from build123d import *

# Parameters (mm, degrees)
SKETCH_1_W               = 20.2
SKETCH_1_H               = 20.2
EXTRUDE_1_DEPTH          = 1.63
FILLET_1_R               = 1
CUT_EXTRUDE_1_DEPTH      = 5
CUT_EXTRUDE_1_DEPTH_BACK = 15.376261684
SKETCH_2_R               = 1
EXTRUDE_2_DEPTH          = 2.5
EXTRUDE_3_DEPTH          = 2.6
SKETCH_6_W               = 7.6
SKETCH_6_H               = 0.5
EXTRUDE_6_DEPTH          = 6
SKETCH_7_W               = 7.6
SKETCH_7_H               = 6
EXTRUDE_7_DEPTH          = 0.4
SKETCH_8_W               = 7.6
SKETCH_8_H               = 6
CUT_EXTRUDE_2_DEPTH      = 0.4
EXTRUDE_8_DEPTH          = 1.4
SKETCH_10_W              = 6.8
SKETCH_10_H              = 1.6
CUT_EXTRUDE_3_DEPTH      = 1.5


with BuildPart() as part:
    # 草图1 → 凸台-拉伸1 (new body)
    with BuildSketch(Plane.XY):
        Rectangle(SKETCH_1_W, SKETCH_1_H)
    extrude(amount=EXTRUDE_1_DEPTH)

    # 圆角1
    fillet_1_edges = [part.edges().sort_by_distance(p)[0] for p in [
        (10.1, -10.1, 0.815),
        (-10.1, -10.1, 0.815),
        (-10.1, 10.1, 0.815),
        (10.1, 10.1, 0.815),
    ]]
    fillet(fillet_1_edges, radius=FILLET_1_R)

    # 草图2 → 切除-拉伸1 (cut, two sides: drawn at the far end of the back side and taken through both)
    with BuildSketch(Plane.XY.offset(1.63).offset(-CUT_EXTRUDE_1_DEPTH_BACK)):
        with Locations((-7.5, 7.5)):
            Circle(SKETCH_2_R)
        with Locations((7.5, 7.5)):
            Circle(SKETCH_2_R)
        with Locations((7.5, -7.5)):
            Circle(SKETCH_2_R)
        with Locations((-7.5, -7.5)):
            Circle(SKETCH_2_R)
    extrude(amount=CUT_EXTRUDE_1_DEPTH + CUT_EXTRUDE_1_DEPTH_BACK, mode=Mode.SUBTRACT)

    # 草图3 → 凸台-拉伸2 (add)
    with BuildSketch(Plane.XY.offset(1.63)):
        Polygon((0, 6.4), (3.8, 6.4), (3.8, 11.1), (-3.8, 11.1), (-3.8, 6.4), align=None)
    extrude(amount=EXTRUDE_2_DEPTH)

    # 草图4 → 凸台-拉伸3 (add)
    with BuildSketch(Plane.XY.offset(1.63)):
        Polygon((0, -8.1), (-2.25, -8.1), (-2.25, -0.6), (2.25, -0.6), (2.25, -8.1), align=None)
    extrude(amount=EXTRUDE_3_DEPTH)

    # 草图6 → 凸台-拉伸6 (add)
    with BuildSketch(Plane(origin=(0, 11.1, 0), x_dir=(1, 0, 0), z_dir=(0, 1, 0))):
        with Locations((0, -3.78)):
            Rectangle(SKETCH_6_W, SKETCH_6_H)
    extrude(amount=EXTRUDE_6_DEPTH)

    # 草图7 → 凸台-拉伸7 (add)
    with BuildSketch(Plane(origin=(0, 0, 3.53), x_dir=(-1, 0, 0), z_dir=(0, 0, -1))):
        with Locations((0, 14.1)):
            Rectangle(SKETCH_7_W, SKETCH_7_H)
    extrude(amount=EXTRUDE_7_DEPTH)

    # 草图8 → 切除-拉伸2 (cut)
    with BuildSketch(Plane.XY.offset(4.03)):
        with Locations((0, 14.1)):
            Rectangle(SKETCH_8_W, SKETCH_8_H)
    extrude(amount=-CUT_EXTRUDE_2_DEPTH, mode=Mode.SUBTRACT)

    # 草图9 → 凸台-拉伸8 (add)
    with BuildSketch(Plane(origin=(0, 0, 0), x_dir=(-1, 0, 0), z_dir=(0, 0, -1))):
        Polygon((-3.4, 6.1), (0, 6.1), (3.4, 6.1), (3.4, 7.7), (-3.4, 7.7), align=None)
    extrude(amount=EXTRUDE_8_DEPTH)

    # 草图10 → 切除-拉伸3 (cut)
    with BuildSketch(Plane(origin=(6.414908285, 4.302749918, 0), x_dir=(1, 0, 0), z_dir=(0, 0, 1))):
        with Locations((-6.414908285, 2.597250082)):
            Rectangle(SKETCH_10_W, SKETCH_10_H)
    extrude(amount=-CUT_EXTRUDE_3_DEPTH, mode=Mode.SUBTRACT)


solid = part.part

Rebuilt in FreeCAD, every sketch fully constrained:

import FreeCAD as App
import Part
import Sketcher
from FreeCAD import Vector
Q = App.Units.Quantity


def edges_at(feature, points):
    """Names of the edges that pass closest to the given points."""
    edges = feature.Shape.Edges
    near = lambda p: min(range(len(edges)), key=lambda i: edges[i].distToShape(Part.Vertex(*p))[0])
    return sorted({f"Edge{near(p) + 1}" for p in points})


def add_polygon(sketch, points):
    """Adds a closed chain of lines whose ends are joined by coincident constraints."""
    first, n = sketch.GeometryCount, len(points)
    for a, b in zip(points, points[1:] + points[:1]):
        sketch.addGeometry(Part.LineSegment(App.Vector(*a, 0), App.Vector(*b, 0)), False)
    for i in range(n):
        sketch.addConstraint(Sketcher.Constraint("Coincident", first + i, 2, first + (i + 1) % n, 1))

doc = App.newDocument("Part")
body = doc.addObject("PartDesign::Body", "Body")

sketch1 = body.newObject("Sketcher::SketchObject", "Sketch")
sketch1.AttachmentSupport = (doc.getObject("XY_Plane"), [""])
sketch1.MapMode = "FlatFace"
add_polygon(sketch1, [(-10.1, 10.1), (-10.1, -10.1), (10.1, -10.1), (10.1, 10.1)])
sketch1.addConstraint([
    Sketcher.Constraint("Vertical", 0),
    Sketcher.Constraint("Horizontal", 1),
    Sketcher.Constraint("Vertical", 2),
    Sketcher.Constraint("Horizontal", 3),
    Sketcher.Constraint("Symmetric", 0, 2, 2, 2, -1, 1),
    Sketcher.Constraint("Equal", 3, 0),
    Sketcher.Constraint("DistanceX", 1, 1, 1, 2, Q("20.2 mm")),
])
pad1 = body.newObject("PartDesign::Pad", "Pad")
pad1.Profile = sketch1
pad1.Length = 1.63
doc.recompute()

fillet = body.newObject("PartDesign::Fillet", "Fillet")
fillet.Base = (pad1, edges_at(pad1, [
    (10.1, -10.1, 0.815),
    (-10.1, -10.1, 0.815),
    (-10.1, 10.1, 0.815),
    (10.1, 10.1, 0.815),
]))
fillet.Radius = 1

sketch2 = body.newObject("Sketcher::SketchObject", "Sketch001")
sketch2.AttachmentSupport = (doc.getObject("XY_Plane"), [""])
sketch2.MapMode = "FlatFace"
sketch2.AttachmentOffset = App.Placement(Vector(0, 0, 1.63), App.Rotation())
sketch2.addGeometry([
    Part.Circle(Vector(-7.5, 7.5, 0), Vector(0, 0, 1), 1),
    Part.Circle(Vector(7.5, 7.5, 0), Vector(0, 0, 1), 1),
    Part.Circle(Vector(7.5, -7.5, 0), Vector(0, 0, 1), 1),
    Part.Circle(Vector(-7.5, -7.5, 0), Vector(0, 0, 1), 1),
], False)
sketch2.addConstraint([
    Sketcher.Constraint("Equal", 0, 1),
    Sketcher.Constraint("Equal", 1, 2),
    Sketcher.Constraint("Equal", 2, 3),
    Sketcher.Constraint("Symmetric", 0, 3, 2, 3, -1, 1),
    Sketcher.Constraint("Symmetric", 1, 3, 3, 3, -1, 1),
    Sketcher.Constraint("Symmetric", 0, 3, 1, 3, -2),
    Sketcher.Constraint("Diameter", 0, Q("2 mm")),
    Sketcher.Constraint("DistanceX", 0, 3, 1, 3, Q("15 mm")),
    Sketcher.Constraint("DistanceY", 2, 3, 1, 3, Q("15 mm")),
])
pocket1 = body.newObject("PartDesign::Pocket", "Pocket")
pocket1.Profile = sketch2
pocket1.Type = "ThroughAll"
pocket1.Midplane = True

sketch3 = body.newObject("Sketcher::SketchObject", "Sketch002")
sketch3.AttachmentSupport = (doc.getObject("XY_Plane"), [""])
sketch3.MapMode = "FlatFace"
sketch3.AttachmentOffset = App.Placement(Vector(0, 0, 1.63), App.Rotation())
add_polygon(sketch3, [(3.8, 6.4), (3.8, 11.1), (-3.8, 11.1), (-3.8, 6.4)])
sketch3.addConstraint([
    Sketcher.Constraint("Vertical", 0),
    Sketcher.Constraint("Horizontal", 1),
    Sketcher.Constraint("Vertical", 2),
    Sketcher.Constraint("Horizontal", 3),
    Sketcher.Constraint("DistanceX", 1, 2, 1, 1, Q("7.6 mm")),
    Sketcher.Constraint("DistanceY", 0, 1, 0, 2, Q("4.7 mm")),
    Sketcher.Constraint("DistanceX", -1, 1, 0, 2, Q("3.8 mm")),
    Sketcher.Constraint("DistanceY", -1, 1, 0, 2, Q("11.1 mm")),
])
pad2 = body.newObject("PartDesign::Pad", "Pad001")
pad2.Profile = sketch3
pad2.Length = 2.5

sketch4 = body.newObject("Sketcher::SketchObject", "Sketch003")
sketch4.AttachmentSupport = (doc.getObject("XY_Plane"), [""])
sketch4.MapMode = "FlatFace"
sketch4.AttachmentOffset = App.Placement(Vector(0, 0, 1.63), App.Rotation())
add_polygon(sketch4, [(-2.25, -8.1), (2.25, -8.1), (2.25, -0.6), (-2.25, -0.6)])
sketch4.addConstraint([
    Sketcher.Constraint("Horizontal", 0),
    Sketcher.Constraint("Vertical", 1),
    Sketcher.Constraint("Horizontal", 2),
    Sketcher.Constraint("Vertical", 3),
    Sketcher.Constraint("DistanceX", 0, 1, 0, 2, Q("4.5 mm")),
    Sketcher.Constraint("DistanceY", 1, 1, 1, 2, Q("7.5 mm")),
    Sketcher.Constraint("DistanceY", 0, 2, -1, 1, Q("8.1 mm")),
    Sketcher.Constraint("DistanceX", -1, 1, 0, 2, Q("2.25 mm")),
])
pad3 = body.newObject("PartDesign::Pad", "Pad002")
pad3.Profile = sketch4
pad3.Length = 2.6

sketch5 = body.newObject("Sketcher::SketchObject", "Sketch004")
sketch5.AttachmentSupport = (doc.getObject("XZ_Plane"), [""])
sketch5.MapMode = "FlatFace"
sketch5.AttachmentOffset = App.Placement(Vector(0, 0, -11.1), App.Rotation())
add_polygon(sketch5, [(-3.8, 3.53), (-3.8, 4.03), (3.8, 4.03), (3.8, 3.53)])
sketch5.addConstraint([
    Sketcher.Constraint("Vertical", 0),
    Sketcher.Constraint("Horizontal", 1),
    Sketcher.Constraint("Vertical", 2),
    Sketcher.Constraint("Horizontal", 3),
    Sketcher.Constraint("DistanceX", 1, 1, 1, 2, Q("7.6 mm")),
    Sketcher.Constraint("DistanceY", 0, 1, 0, 2, Q("0.5 mm")),
    Sketcher.Constraint("DistanceX", 0, 2, -1, 1, Q("3.8 mm")),
    Sketcher.Constraint("DistanceY", -1, 1, 0, 2, Q("4.03 mm")),
])
pad4 = body.newObject("PartDesign::Pad", "Pad003")
pad4.Profile = sketch5
pad4.Length = 6
pad4.Reversed = True

sketch6 = body.newObject("Sketcher::SketchObject", "Sketch005")
sketch6.AttachmentSupport = (doc.getObject("XY_Plane"), [""])
sketch6.MapMode = "FlatFace"
sketch6.AttachmentOffset = App.Placement(Vector(0, 0, 3.53), App.Rotation())
add_polygon(sketch6, [(3.8, 17.1), (3.8, 11.1), (-3.8, 11.1), (-3.8, 17.1)])
sketch6.addConstraint([
    Sketcher.Constraint("Vertical", 0),
    Sketcher.Constraint("Horizontal", 1),
    Sketcher.Constraint("Vertical", 2),
    Sketcher.Constraint("Horizontal", 3),
    Sketcher.Constraint("DistanceY", 0, 2, 0, 1, Q("6 mm")),
    Sketcher.Constraint("DistanceX", 1, 2, 1, 1, Q("7.6 mm")),
    Sketcher.Constraint("DistanceX", -1, 1, 0, 2, Q("3.8 mm")),
    Sketcher.Constraint("DistanceY", -1, 1, 0, 2, Q("11.1 mm")),
])
pad5 = body.newObject("PartDesign::Pad", "Pad004")
pad5.Profile = sketch6
pad5.Length = 0.4
pad5.Reversed = True

sketch7 = body.newObject("Sketcher::SketchObject", "Sketch006")
sketch7.AttachmentSupport = (doc.getObject("XY_Plane"), [""])
sketch7.MapMode = "FlatFace"
sketch7.AttachmentOffset = App.Placement(Vector(0, 0, 4.03), App.Rotation())
add_polygon(sketch7, [(-3.8, 17.1), (-3.8, 11.1), (3.8, 11.1), (3.8, 17.1)])
sketch7.addConstraint([
    Sketcher.Constraint("Vertical", 0),
    Sketcher.Constraint("Horizontal", 1),
    Sketcher.Constraint("Vertical", 2),
    Sketcher.Constraint("Horizontal", 3),
    Sketcher.Constraint("DistanceY", 0, 2, 0, 1, Q("6 mm")),
    Sketcher.Constraint("DistanceX", 1, 1, 1, 2, Q("7.6 mm")),
    Sketcher.Constraint("DistanceX", 0, 2, -1, 1, Q("3.8 mm")),
    Sketcher.Constraint("DistanceY", -1, 1, 0, 2, Q("11.1 mm")),
])
pocket2 = body.newObject("PartDesign::Pocket", "Pocket001")
pocket2.Profile = sketch7
pocket2.Length = 0.4

sketch8 = body.newObject("Sketcher::SketchObject", "Sketch007")
sketch8.AttachmentSupport = (doc.getObject("XY_Plane"), [""])
sketch8.MapMode = "FlatFace"
add_polygon(sketch8, [(3.4, 6.1), (-3.4, 6.1), (-3.4, 7.7), (3.4, 7.7)])
sketch8.addConstraint([
    Sketcher.Constraint("Horizontal", 0),
    Sketcher.Constraint("Vertical", 1),
    Sketcher.Constraint("Horizontal", 2),
    Sketcher.Constraint("Vertical", 3),
    Sketcher.Constraint("DistanceX", 0, 2, 0, 1, Q("6.8 mm")),
    Sketcher.Constraint("DistanceY", 1, 1, 1, 2, Q("1.6 mm")),
    Sketcher.Constraint("DistanceX", 0, 2, -1, 1, Q("3.4 mm")),
    Sketcher.Constraint("DistanceY", -1, 1, 0, 2, Q("6.1 mm")),
])
pad6 = body.newObject("PartDesign::Pad", "Pad005")
pad6.Profile = sketch8
pad6.Length = 1.4
pad6.Reversed = True

sketch9 = body.newObject("Sketcher::SketchObject", "Sketch008")
sketch9.AttachmentSupport = (doc.getObject("XY_Plane"), [""])
sketch9.MapMode = "FlatFace"
add_polygon(sketch9, [(-3.4, 7.7), (-3.4, 6.1), (3.4, 6.1), (3.4, 7.7)])
sketch9.addConstraint([
    Sketcher.Constraint("Vertical", 0),
    Sketcher.Constraint("Horizontal", 1),
    Sketcher.Constraint("Vertical", 2),
    Sketcher.Constraint("Horizontal", 3),
    Sketcher.Constraint("DistanceX", 1, 1, 1, 2, Q("6.8 mm")),
    Sketcher.Constraint("DistanceY", 0, 2, 0, 1, Q("1.6 mm")),
    Sketcher.Constraint("DistanceX", 0, 2, -1, 1, Q("3.4 mm")),
    Sketcher.Constraint("DistanceY", -1, 1, 0, 2, Q("6.1 mm")),
])
pocket3 = body.newObject("PartDesign::Pocket", "Pocket002")
pocket3.Profile = sketch9
pocket3.Length = 1.5

doc.recompute()
